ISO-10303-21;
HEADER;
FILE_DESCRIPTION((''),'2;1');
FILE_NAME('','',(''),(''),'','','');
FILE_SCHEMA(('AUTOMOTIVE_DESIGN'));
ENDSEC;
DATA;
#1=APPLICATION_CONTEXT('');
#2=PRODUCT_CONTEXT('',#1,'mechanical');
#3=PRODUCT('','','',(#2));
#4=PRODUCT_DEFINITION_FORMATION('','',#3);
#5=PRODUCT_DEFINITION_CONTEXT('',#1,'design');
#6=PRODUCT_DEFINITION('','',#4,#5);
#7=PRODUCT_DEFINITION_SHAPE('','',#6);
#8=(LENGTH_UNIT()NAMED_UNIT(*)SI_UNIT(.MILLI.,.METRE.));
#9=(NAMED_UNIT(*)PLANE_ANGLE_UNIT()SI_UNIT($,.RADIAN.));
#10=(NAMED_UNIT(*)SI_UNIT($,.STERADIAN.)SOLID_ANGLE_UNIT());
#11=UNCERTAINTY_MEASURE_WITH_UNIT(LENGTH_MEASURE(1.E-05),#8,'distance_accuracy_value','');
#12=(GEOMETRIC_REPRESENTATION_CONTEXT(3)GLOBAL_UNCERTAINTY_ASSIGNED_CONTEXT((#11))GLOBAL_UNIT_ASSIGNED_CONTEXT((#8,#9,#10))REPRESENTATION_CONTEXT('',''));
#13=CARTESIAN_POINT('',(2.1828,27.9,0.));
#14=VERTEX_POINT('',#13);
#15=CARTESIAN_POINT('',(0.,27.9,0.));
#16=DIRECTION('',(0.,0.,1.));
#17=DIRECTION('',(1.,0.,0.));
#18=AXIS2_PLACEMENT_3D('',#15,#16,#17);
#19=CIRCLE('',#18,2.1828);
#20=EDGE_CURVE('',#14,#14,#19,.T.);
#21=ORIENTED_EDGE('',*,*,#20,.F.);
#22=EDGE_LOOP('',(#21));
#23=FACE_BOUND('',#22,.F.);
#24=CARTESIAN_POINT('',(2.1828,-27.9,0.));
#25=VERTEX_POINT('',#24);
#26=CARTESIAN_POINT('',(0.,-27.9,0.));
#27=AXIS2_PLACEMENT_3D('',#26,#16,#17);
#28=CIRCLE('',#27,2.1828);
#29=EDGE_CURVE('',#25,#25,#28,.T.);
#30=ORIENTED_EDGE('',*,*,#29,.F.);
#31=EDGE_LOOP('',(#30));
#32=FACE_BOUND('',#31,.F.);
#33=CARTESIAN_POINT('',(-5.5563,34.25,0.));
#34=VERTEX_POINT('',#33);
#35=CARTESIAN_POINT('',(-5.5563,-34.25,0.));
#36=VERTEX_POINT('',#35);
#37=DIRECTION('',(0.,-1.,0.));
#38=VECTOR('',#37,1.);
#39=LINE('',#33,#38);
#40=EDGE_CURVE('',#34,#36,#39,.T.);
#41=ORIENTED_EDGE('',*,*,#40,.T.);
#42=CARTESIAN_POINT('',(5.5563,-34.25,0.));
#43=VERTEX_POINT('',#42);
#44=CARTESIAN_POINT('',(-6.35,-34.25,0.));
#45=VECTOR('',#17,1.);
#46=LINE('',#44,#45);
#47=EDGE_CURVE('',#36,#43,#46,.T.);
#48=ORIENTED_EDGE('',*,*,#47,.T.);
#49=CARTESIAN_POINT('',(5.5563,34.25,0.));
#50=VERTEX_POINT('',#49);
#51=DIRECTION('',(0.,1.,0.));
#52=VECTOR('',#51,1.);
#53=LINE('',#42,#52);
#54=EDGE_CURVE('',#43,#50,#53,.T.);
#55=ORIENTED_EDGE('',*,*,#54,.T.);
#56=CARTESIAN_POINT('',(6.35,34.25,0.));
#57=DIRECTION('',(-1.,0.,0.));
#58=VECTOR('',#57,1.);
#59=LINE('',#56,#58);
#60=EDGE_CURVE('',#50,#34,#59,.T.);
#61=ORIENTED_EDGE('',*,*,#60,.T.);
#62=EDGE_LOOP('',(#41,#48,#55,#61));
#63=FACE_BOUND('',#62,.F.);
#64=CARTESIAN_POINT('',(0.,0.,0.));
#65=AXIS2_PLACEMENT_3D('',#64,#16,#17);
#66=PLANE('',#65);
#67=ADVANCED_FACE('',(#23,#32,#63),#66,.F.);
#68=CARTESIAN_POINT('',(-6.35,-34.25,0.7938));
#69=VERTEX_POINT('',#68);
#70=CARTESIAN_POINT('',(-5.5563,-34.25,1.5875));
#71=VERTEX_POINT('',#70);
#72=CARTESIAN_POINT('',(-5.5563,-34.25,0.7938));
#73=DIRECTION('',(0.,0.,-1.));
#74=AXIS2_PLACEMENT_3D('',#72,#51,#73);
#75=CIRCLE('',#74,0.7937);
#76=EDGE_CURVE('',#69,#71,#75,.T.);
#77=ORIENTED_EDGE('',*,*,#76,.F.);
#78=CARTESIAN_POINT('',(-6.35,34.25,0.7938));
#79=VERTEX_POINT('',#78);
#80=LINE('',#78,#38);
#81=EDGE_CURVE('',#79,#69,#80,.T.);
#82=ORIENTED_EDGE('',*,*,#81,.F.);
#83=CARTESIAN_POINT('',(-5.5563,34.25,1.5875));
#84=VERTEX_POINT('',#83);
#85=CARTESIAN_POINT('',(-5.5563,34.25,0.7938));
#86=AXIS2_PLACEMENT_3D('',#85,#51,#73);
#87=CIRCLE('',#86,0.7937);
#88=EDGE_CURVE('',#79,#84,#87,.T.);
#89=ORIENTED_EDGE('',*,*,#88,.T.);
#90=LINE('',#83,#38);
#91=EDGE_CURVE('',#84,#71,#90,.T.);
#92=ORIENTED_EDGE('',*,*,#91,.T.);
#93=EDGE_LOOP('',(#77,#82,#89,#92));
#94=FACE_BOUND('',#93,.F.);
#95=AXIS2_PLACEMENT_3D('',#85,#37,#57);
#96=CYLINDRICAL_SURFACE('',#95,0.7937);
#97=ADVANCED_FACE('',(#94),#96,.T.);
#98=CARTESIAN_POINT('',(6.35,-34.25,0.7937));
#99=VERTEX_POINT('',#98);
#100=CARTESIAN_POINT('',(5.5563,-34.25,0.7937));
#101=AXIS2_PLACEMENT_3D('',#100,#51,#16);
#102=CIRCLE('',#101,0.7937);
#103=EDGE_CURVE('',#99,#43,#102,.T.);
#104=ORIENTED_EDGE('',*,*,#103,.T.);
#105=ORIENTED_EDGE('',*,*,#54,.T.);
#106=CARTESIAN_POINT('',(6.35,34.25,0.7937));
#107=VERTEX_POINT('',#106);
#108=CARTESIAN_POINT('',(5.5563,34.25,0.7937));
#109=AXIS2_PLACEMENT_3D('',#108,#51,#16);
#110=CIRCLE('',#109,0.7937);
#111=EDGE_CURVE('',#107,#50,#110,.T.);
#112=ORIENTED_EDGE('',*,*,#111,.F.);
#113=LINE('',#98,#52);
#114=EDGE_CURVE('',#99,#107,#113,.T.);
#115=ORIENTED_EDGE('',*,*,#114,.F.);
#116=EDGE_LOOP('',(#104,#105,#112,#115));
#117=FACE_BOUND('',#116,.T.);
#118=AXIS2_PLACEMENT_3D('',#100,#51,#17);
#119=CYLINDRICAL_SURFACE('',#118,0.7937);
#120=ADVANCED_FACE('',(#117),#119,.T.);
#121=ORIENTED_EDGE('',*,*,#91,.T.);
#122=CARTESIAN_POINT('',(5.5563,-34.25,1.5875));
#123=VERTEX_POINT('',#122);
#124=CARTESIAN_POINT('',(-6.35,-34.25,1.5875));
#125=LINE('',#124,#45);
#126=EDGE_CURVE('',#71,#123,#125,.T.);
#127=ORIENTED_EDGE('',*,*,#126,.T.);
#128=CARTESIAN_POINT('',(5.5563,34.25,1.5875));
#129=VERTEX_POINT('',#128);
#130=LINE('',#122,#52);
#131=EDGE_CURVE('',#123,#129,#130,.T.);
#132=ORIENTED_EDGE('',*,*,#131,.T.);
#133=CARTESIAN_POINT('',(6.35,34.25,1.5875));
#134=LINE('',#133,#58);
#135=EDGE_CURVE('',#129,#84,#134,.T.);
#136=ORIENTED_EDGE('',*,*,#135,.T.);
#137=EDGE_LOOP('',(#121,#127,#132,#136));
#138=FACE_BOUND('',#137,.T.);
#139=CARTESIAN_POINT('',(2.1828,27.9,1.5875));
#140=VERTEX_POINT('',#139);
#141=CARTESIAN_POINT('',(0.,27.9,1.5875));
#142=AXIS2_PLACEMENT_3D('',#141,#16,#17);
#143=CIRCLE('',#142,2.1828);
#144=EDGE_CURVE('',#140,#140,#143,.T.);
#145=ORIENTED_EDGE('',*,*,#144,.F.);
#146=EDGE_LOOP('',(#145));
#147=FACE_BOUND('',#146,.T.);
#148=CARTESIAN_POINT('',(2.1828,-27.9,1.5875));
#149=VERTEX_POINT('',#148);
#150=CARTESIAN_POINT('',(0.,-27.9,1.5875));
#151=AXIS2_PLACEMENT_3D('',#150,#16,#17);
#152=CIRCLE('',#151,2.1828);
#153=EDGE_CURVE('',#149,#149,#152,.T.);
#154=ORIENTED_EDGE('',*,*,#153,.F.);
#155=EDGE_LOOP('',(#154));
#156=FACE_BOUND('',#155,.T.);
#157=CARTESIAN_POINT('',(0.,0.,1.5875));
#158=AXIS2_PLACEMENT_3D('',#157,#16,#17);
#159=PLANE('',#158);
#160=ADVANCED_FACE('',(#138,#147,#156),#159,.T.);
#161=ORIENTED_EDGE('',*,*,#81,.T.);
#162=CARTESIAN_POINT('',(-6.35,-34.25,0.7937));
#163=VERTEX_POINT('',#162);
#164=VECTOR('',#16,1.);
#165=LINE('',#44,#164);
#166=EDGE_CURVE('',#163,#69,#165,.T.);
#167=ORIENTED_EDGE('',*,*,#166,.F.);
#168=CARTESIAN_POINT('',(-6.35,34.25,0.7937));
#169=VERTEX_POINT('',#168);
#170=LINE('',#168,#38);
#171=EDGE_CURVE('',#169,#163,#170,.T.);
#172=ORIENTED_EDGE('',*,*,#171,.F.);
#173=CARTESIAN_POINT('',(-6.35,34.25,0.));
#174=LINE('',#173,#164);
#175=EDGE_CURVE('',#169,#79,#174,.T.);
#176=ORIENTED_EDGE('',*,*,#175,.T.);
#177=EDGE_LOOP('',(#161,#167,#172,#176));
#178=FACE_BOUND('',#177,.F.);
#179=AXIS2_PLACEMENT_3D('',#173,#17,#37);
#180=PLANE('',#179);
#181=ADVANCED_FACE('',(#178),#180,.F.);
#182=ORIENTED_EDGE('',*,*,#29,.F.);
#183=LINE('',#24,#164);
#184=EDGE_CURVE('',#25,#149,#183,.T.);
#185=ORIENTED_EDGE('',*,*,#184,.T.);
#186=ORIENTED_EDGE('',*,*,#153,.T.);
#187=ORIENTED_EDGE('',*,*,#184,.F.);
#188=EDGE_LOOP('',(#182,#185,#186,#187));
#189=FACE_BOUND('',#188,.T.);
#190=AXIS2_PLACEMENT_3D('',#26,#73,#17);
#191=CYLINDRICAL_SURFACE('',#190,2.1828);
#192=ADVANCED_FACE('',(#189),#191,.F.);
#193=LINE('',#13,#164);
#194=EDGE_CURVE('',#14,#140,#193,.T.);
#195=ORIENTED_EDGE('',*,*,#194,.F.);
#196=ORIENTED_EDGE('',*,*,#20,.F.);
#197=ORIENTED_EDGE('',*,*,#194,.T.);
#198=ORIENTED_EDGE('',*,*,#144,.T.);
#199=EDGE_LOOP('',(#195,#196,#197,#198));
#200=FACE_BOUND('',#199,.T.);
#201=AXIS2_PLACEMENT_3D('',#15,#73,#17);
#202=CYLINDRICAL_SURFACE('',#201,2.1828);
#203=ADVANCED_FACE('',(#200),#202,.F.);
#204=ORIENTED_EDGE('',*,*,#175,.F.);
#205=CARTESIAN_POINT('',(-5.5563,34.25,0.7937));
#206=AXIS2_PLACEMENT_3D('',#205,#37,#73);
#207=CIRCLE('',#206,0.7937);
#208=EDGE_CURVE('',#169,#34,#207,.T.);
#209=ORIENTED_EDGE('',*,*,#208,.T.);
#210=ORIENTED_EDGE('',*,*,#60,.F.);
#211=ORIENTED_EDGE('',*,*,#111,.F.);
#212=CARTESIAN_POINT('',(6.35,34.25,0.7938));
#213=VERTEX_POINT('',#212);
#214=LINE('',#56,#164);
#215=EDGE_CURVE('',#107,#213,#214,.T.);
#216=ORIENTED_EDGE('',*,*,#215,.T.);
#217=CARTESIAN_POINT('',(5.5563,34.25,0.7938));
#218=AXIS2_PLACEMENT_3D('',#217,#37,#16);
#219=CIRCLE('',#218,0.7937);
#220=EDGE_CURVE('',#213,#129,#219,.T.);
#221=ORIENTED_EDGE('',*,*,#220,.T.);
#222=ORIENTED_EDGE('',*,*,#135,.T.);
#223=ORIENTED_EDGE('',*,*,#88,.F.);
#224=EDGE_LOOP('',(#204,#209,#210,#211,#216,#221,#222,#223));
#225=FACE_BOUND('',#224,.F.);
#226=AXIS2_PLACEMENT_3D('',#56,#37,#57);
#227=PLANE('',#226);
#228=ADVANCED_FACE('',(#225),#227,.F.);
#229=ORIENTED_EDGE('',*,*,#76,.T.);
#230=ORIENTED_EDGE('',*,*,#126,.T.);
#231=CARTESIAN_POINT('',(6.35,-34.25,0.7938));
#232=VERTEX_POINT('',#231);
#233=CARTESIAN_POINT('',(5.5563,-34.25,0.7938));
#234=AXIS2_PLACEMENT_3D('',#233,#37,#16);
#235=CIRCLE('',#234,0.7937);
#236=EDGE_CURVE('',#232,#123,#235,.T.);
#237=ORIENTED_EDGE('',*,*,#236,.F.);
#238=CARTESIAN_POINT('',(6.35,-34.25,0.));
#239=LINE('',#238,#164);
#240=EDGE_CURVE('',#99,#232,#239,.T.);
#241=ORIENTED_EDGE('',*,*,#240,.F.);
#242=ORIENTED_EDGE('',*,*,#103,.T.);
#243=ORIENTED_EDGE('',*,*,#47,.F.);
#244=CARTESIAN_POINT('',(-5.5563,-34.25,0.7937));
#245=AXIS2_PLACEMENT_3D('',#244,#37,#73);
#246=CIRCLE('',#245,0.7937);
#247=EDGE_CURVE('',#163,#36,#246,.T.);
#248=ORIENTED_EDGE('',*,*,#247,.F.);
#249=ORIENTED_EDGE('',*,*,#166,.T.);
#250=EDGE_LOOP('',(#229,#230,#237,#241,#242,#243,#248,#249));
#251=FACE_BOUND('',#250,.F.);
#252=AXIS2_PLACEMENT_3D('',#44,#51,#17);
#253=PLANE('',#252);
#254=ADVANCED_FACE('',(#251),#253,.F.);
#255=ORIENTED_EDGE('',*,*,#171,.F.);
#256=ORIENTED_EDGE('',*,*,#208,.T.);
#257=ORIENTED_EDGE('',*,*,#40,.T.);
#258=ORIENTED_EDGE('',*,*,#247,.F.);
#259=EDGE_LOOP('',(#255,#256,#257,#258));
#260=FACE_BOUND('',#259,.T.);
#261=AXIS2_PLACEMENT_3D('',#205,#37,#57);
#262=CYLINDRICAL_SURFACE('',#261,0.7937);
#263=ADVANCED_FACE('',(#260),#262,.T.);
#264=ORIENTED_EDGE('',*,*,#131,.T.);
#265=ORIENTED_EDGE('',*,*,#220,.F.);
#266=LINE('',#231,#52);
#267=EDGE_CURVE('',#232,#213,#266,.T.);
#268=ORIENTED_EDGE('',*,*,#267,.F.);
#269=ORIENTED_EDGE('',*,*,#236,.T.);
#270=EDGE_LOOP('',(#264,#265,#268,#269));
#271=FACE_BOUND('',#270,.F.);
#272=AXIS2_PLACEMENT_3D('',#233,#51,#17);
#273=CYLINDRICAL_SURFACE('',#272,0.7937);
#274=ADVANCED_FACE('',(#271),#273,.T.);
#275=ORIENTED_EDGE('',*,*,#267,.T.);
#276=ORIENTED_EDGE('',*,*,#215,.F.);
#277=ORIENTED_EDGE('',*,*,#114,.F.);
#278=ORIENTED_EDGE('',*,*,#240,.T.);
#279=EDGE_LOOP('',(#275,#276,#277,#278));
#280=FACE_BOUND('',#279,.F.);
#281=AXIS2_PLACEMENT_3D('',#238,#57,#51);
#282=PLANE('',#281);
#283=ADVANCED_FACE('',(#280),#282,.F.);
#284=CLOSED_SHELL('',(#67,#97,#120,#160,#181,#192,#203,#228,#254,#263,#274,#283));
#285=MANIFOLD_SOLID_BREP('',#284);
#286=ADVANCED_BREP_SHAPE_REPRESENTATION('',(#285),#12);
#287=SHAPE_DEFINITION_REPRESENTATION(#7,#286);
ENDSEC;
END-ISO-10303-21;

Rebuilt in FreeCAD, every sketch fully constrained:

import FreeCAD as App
import Part
import Sketcher
Q = App.Units.Quantity


def edges_at(feature, points):
    """Names of the edges that pass closest to the given points."""
    edges = feature.Shape.Edges
    near = lambda p: min(range(len(edges)), key=lambda i: edges[i].distToShape(Part.Vertex(*p))[0])
    return sorted({f"Edge{near(p) + 1}" for p in points})

doc = App.newDocument("Part")
body = doc.addObject("PartDesign::Body", "Body")

sketch1 = body.newObject("Sketcher::SketchObject", "Sketch")
sketch1.AttachmentSupport = (doc.getObject("XY_Plane"), [""])
sketch1.MapMode = "FlatFace"
sketch1.addGeometry([
    Part.LineSegment(App.Vector(-6.3, 34.2, 0), App.Vector(-6.3, -34.2, 0)),
    Part.LineSegment(App.Vector(-6.3, -34.2, 0), App.Vector(6.3, -34.2, 0)),
    Part.LineSegment(App.Vector(6.3, -34.2, 0), App.Vector(6.3, 34.2, 0)),
    Part.LineSegment(App.Vector(6.3, 34.2, 0), App.Vector(-6.3, 34.2, 0)),
    Part.Circle(App.Vector(0, -27.9, 0), App.Vector(0, 0, 1), 2.2),
    Part.Circle(App.Vector(0, 27.9, 0), App.Vector(0, 0, 1), 2.2),
], False)
sketch1.addConstraint([
    Sketcher.Constraint("Coincident", 0, 2, 1, 1),
    Sketcher.Constraint("Coincident", 1, 2, 2, 1),
    Sketcher.Constraint("Coincident", 2, 2, 3, 1),
    Sketcher.Constraint("Coincident", 3, 2, 0, 1),
    Sketcher.Constraint("Vertical", 0),
    Sketcher.Constraint("Horizontal", 1),
    Sketcher.Constraint("Vertical", 2),
    Sketcher.Constraint("Horizontal", 3),
    Sketcher.Constraint("Equal", 4, 5),
    Sketcher.Constraint("Symmetric", 4, 3, 5, 3, -1, 1),
    Sketcher.Constraint("Symmetric", 0, 2, 2, 2, -1, 1),
    Sketcher.Constraint("PointOnObject", 4, 3, -2),
    Sketcher.Constraint("Diameter", 4, Q("0.171874 in")),
    Sketcher.Constraint("DistanceX", 1, 1, 1, 2, Q("0.5 in")),
    Sketcher.Constraint("DistanceY", 0, 2, 4, 3, Q("0.25 in")),
    Sketcher.Constraint("DistanceY", 4, 3, -1, 1, 27.9),
])
pad1 = body.newObject("PartDesign::Pad", "Pad")
pad1.Profile = sketch1
pad1.Length = Q("0.0625 in")
doc.recompute()

fillet = body.newObject("PartDesign::Fillet", "Fillet")
fillet.Base = (pad1, edges_at(pad1, [
    (-6.35, 0, 0),
    (-6.35, 0, 1.587),
    (6.35, 0, 0),
    (6.35, 0, 1.587),
]))
fillet.Radius = Q("0.031248 in")

doc.recompute()
